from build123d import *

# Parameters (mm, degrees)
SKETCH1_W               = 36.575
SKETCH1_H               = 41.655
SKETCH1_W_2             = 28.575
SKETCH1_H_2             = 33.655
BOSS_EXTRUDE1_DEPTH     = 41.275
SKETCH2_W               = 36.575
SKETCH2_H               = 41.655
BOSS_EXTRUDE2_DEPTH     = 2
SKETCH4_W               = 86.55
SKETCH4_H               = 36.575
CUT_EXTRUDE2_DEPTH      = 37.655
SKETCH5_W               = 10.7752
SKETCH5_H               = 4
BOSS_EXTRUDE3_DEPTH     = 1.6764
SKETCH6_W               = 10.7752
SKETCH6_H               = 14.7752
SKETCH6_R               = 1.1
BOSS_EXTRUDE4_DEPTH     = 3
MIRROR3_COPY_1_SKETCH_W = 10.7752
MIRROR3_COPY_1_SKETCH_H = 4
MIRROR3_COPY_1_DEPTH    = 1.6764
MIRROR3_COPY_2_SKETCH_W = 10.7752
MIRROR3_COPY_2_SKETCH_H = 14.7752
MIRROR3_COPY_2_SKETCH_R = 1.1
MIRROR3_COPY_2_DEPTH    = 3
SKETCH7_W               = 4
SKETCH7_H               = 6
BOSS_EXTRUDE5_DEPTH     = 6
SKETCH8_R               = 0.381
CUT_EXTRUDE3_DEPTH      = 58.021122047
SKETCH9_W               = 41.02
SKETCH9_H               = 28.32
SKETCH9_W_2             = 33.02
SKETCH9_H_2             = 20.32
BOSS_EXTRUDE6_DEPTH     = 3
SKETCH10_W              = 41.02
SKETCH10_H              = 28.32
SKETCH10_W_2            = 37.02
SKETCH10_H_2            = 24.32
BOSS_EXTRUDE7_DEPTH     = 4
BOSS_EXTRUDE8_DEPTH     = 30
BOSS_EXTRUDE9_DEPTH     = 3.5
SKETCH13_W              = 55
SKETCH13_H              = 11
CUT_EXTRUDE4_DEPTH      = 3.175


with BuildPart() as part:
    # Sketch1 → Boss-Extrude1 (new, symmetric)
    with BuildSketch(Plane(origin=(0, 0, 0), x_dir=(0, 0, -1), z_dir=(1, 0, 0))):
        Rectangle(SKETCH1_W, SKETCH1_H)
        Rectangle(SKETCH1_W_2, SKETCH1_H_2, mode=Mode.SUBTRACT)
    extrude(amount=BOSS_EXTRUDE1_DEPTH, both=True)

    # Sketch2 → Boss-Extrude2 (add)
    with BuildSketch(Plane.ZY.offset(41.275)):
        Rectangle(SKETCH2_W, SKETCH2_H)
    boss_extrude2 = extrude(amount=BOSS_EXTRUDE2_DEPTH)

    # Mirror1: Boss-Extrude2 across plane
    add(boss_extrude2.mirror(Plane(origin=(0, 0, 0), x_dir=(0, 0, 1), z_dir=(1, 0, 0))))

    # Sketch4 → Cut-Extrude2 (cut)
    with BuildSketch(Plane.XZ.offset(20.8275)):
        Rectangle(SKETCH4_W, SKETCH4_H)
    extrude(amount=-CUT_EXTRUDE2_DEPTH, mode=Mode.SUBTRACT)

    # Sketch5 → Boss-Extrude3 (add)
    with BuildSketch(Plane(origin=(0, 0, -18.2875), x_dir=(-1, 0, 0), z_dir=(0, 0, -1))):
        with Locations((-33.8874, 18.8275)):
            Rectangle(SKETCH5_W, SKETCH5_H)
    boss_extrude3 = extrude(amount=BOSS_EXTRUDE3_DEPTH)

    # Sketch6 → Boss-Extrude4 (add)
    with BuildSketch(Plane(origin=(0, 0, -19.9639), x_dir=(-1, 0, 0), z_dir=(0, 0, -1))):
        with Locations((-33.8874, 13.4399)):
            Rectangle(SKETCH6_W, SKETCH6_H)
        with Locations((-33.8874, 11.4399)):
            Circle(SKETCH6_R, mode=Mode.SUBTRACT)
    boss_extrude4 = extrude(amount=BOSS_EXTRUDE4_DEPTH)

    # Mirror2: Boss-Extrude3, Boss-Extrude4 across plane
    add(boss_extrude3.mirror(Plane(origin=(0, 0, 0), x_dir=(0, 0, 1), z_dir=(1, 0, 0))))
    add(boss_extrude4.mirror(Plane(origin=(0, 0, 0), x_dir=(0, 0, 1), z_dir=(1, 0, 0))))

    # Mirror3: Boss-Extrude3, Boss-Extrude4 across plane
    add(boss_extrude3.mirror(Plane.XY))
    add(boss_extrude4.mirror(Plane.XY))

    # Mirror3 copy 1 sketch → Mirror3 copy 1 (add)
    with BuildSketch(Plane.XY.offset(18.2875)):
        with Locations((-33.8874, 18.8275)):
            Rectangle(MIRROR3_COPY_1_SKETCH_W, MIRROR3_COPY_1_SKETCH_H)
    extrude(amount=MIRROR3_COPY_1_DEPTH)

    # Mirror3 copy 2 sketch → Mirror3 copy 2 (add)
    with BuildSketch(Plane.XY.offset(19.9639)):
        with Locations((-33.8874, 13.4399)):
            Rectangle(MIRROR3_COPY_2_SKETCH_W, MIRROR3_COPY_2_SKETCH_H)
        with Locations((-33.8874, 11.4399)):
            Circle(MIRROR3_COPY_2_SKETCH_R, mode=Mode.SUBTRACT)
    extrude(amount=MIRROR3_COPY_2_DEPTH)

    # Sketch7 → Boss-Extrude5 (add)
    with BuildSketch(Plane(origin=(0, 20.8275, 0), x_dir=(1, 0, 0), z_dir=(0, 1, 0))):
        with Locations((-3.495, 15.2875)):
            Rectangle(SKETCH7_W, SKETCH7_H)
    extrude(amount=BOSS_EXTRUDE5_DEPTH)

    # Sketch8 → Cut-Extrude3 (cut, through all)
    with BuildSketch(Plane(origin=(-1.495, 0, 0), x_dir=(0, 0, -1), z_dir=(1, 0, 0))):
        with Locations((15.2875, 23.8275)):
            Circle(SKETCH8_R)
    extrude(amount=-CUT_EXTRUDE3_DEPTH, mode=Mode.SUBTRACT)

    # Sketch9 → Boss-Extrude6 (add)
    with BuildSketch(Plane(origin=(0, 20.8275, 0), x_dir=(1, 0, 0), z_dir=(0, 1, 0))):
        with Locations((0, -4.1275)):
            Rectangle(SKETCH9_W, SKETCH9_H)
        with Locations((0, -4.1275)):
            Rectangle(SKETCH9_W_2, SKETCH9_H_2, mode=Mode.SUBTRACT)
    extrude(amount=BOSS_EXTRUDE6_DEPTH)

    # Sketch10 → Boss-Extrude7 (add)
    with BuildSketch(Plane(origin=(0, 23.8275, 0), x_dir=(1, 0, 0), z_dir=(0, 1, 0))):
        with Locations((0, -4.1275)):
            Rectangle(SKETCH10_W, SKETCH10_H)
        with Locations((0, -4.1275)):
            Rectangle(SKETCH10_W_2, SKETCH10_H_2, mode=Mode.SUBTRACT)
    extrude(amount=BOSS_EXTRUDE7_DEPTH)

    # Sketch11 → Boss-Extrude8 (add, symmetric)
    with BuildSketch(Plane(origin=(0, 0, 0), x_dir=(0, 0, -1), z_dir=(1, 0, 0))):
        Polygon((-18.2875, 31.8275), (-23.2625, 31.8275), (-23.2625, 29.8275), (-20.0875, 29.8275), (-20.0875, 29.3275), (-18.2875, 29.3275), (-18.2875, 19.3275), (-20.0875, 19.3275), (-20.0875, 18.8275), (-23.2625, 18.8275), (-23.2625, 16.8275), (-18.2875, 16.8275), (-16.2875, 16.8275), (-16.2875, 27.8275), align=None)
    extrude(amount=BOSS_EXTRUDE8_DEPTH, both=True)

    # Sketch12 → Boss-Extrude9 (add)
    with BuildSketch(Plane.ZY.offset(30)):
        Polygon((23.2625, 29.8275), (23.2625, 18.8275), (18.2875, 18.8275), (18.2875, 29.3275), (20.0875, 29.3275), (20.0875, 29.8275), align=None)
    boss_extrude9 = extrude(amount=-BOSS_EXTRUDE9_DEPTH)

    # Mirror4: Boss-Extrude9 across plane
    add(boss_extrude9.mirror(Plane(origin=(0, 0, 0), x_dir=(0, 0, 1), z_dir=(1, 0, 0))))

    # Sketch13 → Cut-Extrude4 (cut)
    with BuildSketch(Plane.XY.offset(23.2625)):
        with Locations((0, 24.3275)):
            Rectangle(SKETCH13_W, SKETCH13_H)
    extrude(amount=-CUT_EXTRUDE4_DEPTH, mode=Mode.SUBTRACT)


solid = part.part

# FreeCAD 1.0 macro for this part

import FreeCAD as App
import Part
import Sketcher
from FreeCAD import Vector


def add_polygon(sketch, points):
    """Adds a closed chain of lines whose ends are joined by coincident constraints."""
    first, n = sketch.GeometryCount, len(points)
    for a, b in zip(points, points[1:] + points[:1]):
        sketch.addGeometry(Part.LineSegment(App.Vector(*a, 0), App.Vector(*b, 0)), False)
    for i in range(n):
        sketch.addConstraint(Sketcher.Constraint("Coincident", first + i, 2, first + (i + 1) % n, 1))

doc = App.newDocument("Part")
body = doc.addObject("PartDesign::Body", "Body")

sketch1 = body.newObject("Sketcher::SketchObject", "Sketch")
sketch1.AttachmentSupport = (doc.getObject("YZ_Plane"), [""])
sketch1.MapMode = "FlatFace"
add_polygon(sketch1, [(21, 18), (-21, 18), (-21, -18), (21, -18)])
add_polygon(sketch1, [(-17, -14), (-17, 14), (17, 14), (17, -14)])
sketch1.addConstraint(Sketcher.Constraint("Horizontal", 0))
sketch1.addConstraint(Sketcher.Constraint("Vertical", 1))
sketch1.addConstraint(Sketcher.Constraint("Horizontal", 2))
sketch1.addConstraint(Sketcher.Constraint("Vertical", 3))
sketch1.addConstraint(Sketcher.Constraint("Vertical", 4))
sketch1.addConstraint(Sketcher.Constraint("Horizontal", 5))
sketch1.addConstraint(Sketcher.Constraint("Vertical", 6))
sketch1.addConstraint(Sketcher.Constraint("Horizontal", 7))
sketch1.addConstraint(Sketcher.Constraint("Symmetric", 0, 2, 2, 2, -1, 1))
sketch1.addConstraint(Sketcher.Constraint("Symmetric", 4, 2, 6, 2, -1, 1))
sketch1.addConstraint(Sketcher.Constraint("DistanceX", 0, 2, 4, 2, 4.0))
sketch1.addConstraint(Sketcher.Constraint("DistanceY", 4, 2, 0, 2, 4.0))
sketch1.addConstraint(Sketcher.Constraint("DistanceX", 0, 2, 0, 1, 41.655))
sketch1.addConstraint(Sketcher.Constraint("DistanceY", 1, 2, 1, 1, 36.575))
pad1 = body.newObject("PartDesign::Pad", "Pad")
pad1.Profile = sketch1
pad1.Length = 82.55
pad1.Midplane = True

sketch2 = body.newObject("Sketcher::SketchObject", "Sketch001")
sketch2.AttachmentSupport = (doc.getObject("YZ_Plane"), [""])
sketch2.MapMode = "FlatFace"
sketch2.AttachmentOffset = App.Placement(Vector(0, 0, -41.275), App.Rotation())
add_polygon(sketch2, [(21, -18), (-21, -18), (-21, 18), (21, 18)])
sketch2.addConstraint(Sketcher.Constraint("Horizontal", 0))
sketch2.addConstraint(Sketcher.Constraint("Vertical", 1))
sketch2.addConstraint(Sketcher.Constraint("Horizontal", 2))
sketch2.addConstraint(Sketcher.Constraint("Vertical", 3))
sketch2.addConstraint(Sketcher.Constraint("Symmetric", 0, 2, 2, 2, -1, 1))
sketch2.addConstraint(Sketcher.Constraint("DistanceX", 0, 2, 0, 1, 41.655))
sketch2.addConstraint(Sketcher.Constraint("DistanceY", 1, 1, 1, 2, 36.575))
pad2 = body.newObject("PartDesign::Pad", "Pad001")
pad2.Profile = sketch2
pad2.Length = 2
pad2.Reversed = True
doc.recompute()

mirrored = body.newObject("PartDesign::Mirrored", "Mirrored")
mirrored.Originals = [pad2]
mirrored.MirrorPlane = (doc.getObject("YZ_Plane"), [""])
body.Tip = mirrored

sketch3 = body.newObject("Sketcher::SketchObject", "Sketch002")
sketch3.AttachmentSupport = (doc.getObject("XZ_Plane"), [""])
sketch3.MapMode = "FlatFace"
sketch3.AttachmentOffset = App.Placement(Vector(0, 0, 20.8275), App.Rotation())
add_polygon(sketch3, [(-43, 18), (-43, -18), (43, -18), (43, 18)])
sketch3.addConstraint(Sketcher.Constraint("Vertical", 0))
sketch3.addConstraint(Sketcher.Constraint("Horizontal", 1))
sketch3.addConstraint(Sketcher.Constraint("Vertical", 2))
sketch3.addConstraint(Sketcher.Constraint("Horizontal", 3))
sketch3.addConstraint(Sketcher.Constraint("Symmetric", 0, 2, 2, 2, -1, 1))
sketch3.addConstraint(Sketcher.Constraint("DistanceX", 1, 1, 1, 2, 86.55))
sketch3.addConstraint(Sketcher.Constraint("DistanceY", 0, 2, 0, 1, 36.575))
pocket1 = body.newObject("PartDesign::Pocket", "Pocket")
pocket1.Profile = sketch3
pocket1.Length = 37.655

sketch4 = body.newObject("Sketcher::SketchObject", "Sketch003")
sketch4.AttachmentSupport = (doc.getObject("XY_Plane"), [""])
sketch4.MapMode = "FlatFace"
sketch4.AttachmentOffset = App.Placement(Vector(0, 0, -18.2875), App.Rotation())
add_polygon(sketch4, [(39.3, 20.8), (39.3, 16.8), (28.5, 16.8), (28.5, 20.8)])
sketch4.addConstraint(Sketcher.Constraint("Vertical", 0))
sketch4.addConstraint(Sketcher.Constraint("Horizontal", 1))
sketch4.addConstraint(Sketcher.Constraint("Vertical", 2))
sketch4.addConstraint(Sketcher.Constraint("Horizontal", 3))
sketch4.addConstraint(Sketcher.Constraint("DistanceY", 0, 2, 0, 1, 4.0))
sketch4.addConstraint(Sketcher.Constraint("DistanceX", 1, 2, 1, 1, 10.7752))
sketch4.addConstraint(Sketcher.Constraint("DistanceX", -1, 1, 0, 2, 39.275))
sketch4.addConstraint(Sketcher.Constraint("DistanceY", -1, 1, 0, 2, 16.8275))
pad3 = body.newObject("PartDesign::Pad", "Pad002")
pad3.Profile = sketch4
pad3.Length = 1.6764
pad3.Reversed = True

sketch5 = body.newObject("Sketcher::SketchObject", "Sketch004")
sketch5.AttachmentSupport = (doc.getObject("XY_Plane"), [""])
sketch5.MapMode = "FlatFace"
sketch5.AttachmentOffset = App.Placement(Vector(0, 0, -19.9639), App.Rotation())
add_polygon(sketch5, [(39.3, 20.8), (39.3, 6.1), (28.5, 6.1), (28.5, 20.8)])
sketch5.addGeometry(Part.Circle(Vector(33.9, 11.4, 0), Vector(0, 0, 1), 1.1), False)
sketch5.addConstraint(Sketcher.Constraint("Vertical", 0))
sketch5.addConstraint(Sketcher.Constraint("Horizontal", 1))
sketch5.addConstraint(Sketcher.Constraint("Vertical", 2))
sketch5.addConstraint(Sketcher.Constraint("Horizontal", 3))
sketch5.addConstraint(Sketcher.Constraint("Diameter", 4, 2.2))
sketch5.addConstraint(Sketcher.Constraint("DistanceX", 1, 2, 1, 1, 10.7752))
sketch5.addConstraint(Sketcher.Constraint("DistanceY", 0, 2, 0, 1, 14.7752))
sketch5.addConstraint(Sketcher.Constraint("DistanceX", -1, 1, 0, 2, 39.275))
sketch5.addConstraint(Sketcher.Constraint("DistanceX", -1, 1, 4, 3, 33.8874))
sketch5.addConstraint(Sketcher.Constraint("DistanceY", -1, 1, 4, 3, 11.4399))
sketch5.addConstraint(Sketcher.Constraint("DistanceY", -1, 1, 0, 2, 6.0523))
pad4 = body.newObject("PartDesign::Pad", "Pad003")
pad4.Profile = sketch5
pad4.Length = 3
pad4.Reversed = True
doc.recompute()

mirrored2 = body.newObject("PartDesign::Mirrored", "Mirrored001")
mirrored2.Originals = [pad3, pad4]
mirrored2.MirrorPlane = (doc.getObject("YZ_Plane"), [""])
body.Tip = mirrored2
doc.recompute()

mirrored3 = body.newObject("PartDesign::Mirrored", "Mirrored002")
mirrored3.Originals = [pad3, pad4]
mirrored3.MirrorPlane = (doc.getObject("XY_Plane"), [""])
body.Tip = mirrored3

sketch6 = body.newObject("Sketcher::SketchObject", "Sketch005")
sketch6.AttachmentSupport = (doc.getObject("XY_Plane"), [""])
sketch6.MapMode = "FlatFace"
sketch6.AttachmentOffset = App.Placement(Vector(0, 0, 18.2875), App.Rotation())
add_polygon(sketch6, [(-39.3, 20.8), (-39.3, 16.8), (-28.5, 16.8), (-28.5, 20.8)])
sketch6.addConstraint(Sketcher.Constraint("Vertical", 0))
sketch6.addConstraint(Sketcher.Constraint("Horizontal", 1))
sketch6.addConstraint(Sketcher.Constraint("Vertical", 2))
sketch6.addConstraint(Sketcher.Constraint("Horizontal", 3))
sketch6.addConstraint(Sketcher.Constraint("DistanceY", 0, 2, 0, 1, 4.0))
sketch6.addConstraint(Sketcher.Constraint("DistanceX", 1, 1, 1, 2, 10.7752))
sketch6.addConstraint(Sketcher.Constraint("DistanceX", 0, 2, -1, 1, 39.275))
sketch6.addConstraint(Sketcher.Constraint("DistanceY", -1, 1, 0, 2, 16.8275))
pad5 = body.newObject("PartDesign::Pad", "Pad004")
pad5.Profile = sketch6
pad5.Length = 1.6764

sketch7 = body.newObject("Sketcher::SketchObject", "Sketch006")
sketch7.AttachmentSupport = (doc.getObject("XY_Plane"), [""])
sketch7.MapMode = "FlatFace"
sketch7.AttachmentOffset = App.Placement(Vector(0, 0, 19.9639), App.Rotation())
add_polygon(sketch7, [(-39.3, 20.8), (-39.3, 6.1), (-28.5, 6.1), (-28.5, 20.8)])
sketch7.addGeometry(Part.Circle(Vector(-33.9, 11.4, 0), Vector(0, 0, 1), 1.1), False)
sketch7.addConstraint(Sketcher.Constraint("Vertical", 0))
sketch7.addConstraint(Sketcher.Constraint("Horizontal", 1))
sketch7.addConstraint(Sketcher.Constraint("Vertical", 2))
sketch7.addConstraint(Sketcher.Constraint("Horizontal", 3))
sketch7.addConstraint(Sketcher.Constraint("Diameter", 4, 2.2))
sketch7.addConstraint(Sketcher.Constraint("DistanceX", 1, 1, 1, 2, 10.7752))
sketch7.addConstraint(Sketcher.Constraint("DistanceY", 0, 2, 0, 1, 14.7752))
sketch7.addConstraint(Sketcher.Constraint("DistanceX", 0, 2, -1, 1, 39.275))
sketch7.addConstraint(Sketcher.Constraint("DistanceX", 4, 3, -1, 1, 33.8874))
sketch7.addConstraint(Sketcher.Constraint("DistanceY", -1, 1, 4, 3, 11.4399))
sketch7.addConstraint(Sketcher.Constraint("DistanceY", -1, 1, 0, 2, 6.0523))
pad6 = body.newObject("PartDesign::Pad", "Pad005")
pad6.Profile = sketch7
pad6.Length = 3

sketch8 = body.newObject("Sketcher::SketchObject", "Sketch007")
sketch8.AttachmentSupport = (doc.getObject("XZ_Plane"), [""])
sketch8.MapMode = "FlatFace"
sketch8.AttachmentOffset = App.Placement(Vector(0, 0, -20.8275), App.Rotation())
add_polygon(sketch8, [(-5.5, -18.3), (-5.5, -12.3), (-1.5, -12.3), (-1.5, -18.3)])
sketch8.addConstraint(Sketcher.Constraint("Vertical", 0))
sketch8.addConstraint(Sketcher.Constraint("Horizontal", 1))
sketch8.addConstraint(Sketcher.Constraint("Vertical", 2))
sketch8.addConstraint(Sketcher.Constraint("Horizontal", 3))
sketch8.addConstraint(Sketcher.Constraint("DistanceX", 1, 1, 1, 2, 4.0))
sketch8.addConstraint(Sketcher.Constraint("DistanceY", 0, 1, 0, 2, 6.0))
sketch8.addConstraint(Sketcher.Constraint("DistanceX", 0, 2, -1, 1, 5.495))
sketch8.addConstraint(Sketcher.Constraint("DistanceY", 0, 2, -1, 1, 12.2875))
pad7 = body.newObject("PartDesign::Pad", "Pad006")
pad7.Profile = sketch8
pad7.Length = 6
pad7.Reversed = True

sketch9 = body.newObject("Sketcher::SketchObject", "Sketch008")
sketch9.AttachmentSupport = (doc.getObject("YZ_Plane"), [""])
sketch9.MapMode = "FlatFace"
sketch9.AttachmentOffset = App.Placement(Vector(0, 0, -1.495), App.Rotation())
sketch9.addGeometry(Part.Circle(Vector(23.83, -15.29, 0), Vector(0, 0, 1), 0.38), False)
sketch9.addConstraint(Sketcher.Constraint("Diameter", 0, 0.762))
sketch9.addConstraint(Sketcher.Constraint("DistanceX", -1, 1, 0, 3, 23.8275))
sketch9.addConstraint(Sketcher.Constraint("DistanceY", 0, 3, -1, 1, 15.2875))
pocket2 = body.newObject("PartDesign::Pocket", "Pocket001")
pocket2.Profile = sketch9
pocket2.Type = "ThroughAll"

sketch10 = body.newObject("Sketcher::SketchObject", "Sketch009")
sketch10.AttachmentSupport = (doc.getObject("XZ_Plane"), [""])
sketch10.MapMode = "FlatFace"
sketch10.AttachmentOffset = App.Placement(Vector(0, 0, -20.8275), App.Rotation())
add_polygon(sketch10, [(-21, -10), (-21, 18), (21, 18), (21, -10)])
add_polygon(sketch10, [(17, 14), (-17, 14), (-17, -6), (17, -6)])
sketch10.addConstraint(Sketcher.Constraint("Vertical", 0))
sketch10.addConstraint(Sketcher.Constraint("Horizontal", 1))
sketch10.addConstraint(Sketcher.Constraint("Vertical", 2))
sketch10.addConstraint(Sketcher.Constraint("Horizontal", 3))
sketch10.addConstraint(Sketcher.Constraint("Horizontal", 4))
sketch10.addConstraint(Sketcher.Constraint("Vertical", 5))
sketch10.addConstraint(Sketcher.Constraint("Horizontal", 6))
sketch10.addConstraint(Sketcher.Constraint("Vertical", 7))
sketch10.addConstraint(Sketcher.Constraint("DistanceX", 0, 2, 4, 2, 4.0))
sketch10.addConstraint(Sketcher.Constraint("DistanceY", 4, 2, 0, 2, 4.0))
sketch10.addConstraint(Sketcher.Constraint("DistanceY", 3, 2, 5, 2, 4.0))
sketch10.addConstraint(Sketcher.Constraint("DistanceX", 6, 2, 2, 2, 4.0))
sketch10.addConstraint(Sketcher.Constraint("DistanceX", 1, 1, 1, 2, 41.02))
sketch10.addConstraint(Sketcher.Constraint("DistanceY", 0, 1, 0, 2, 28.32))
sketch10.addConstraint(Sketcher.Constraint("DistanceX", 0, 2, -1, 1, 20.51))
sketch10.addConstraint(Sketcher.Constraint("DistanceY", -1, 1, 0, 2, 18.2875))
pad8 = body.newObject("PartDesign::Pad", "Pad007")
pad8.Profile = sketch10
pad8.Length = 3
pad8.Reversed = True

sketch11 = body.newObject("Sketcher::SketchObject", "Sketch010")
sketch11.AttachmentSupport = (doc.getObject("XZ_Plane"), [""])
sketch11.MapMode = "FlatFace"
sketch11.AttachmentOffset = App.Placement(Vector(0, 0, -23.8275), App.Rotation())
add_polygon(sketch11, [(-21, -10), (-21, 18), (21, 18), (21, -10)])
add_polygon(sketch11, [(19, 16), (-19, 16), (-19, -8), (19, -8)])
sketch11.addConstraint(Sketcher.Constraint("Vertical", 0))
sketch11.addConstraint(Sketcher.Constraint("Horizontal", 1))
sketch11.addConstraint(Sketcher.Constraint("Vertical", 2))
sketch11.addConstraint(Sketcher.Constraint("Horizontal", 3))
sketch11.addConstraint(Sketcher.Constraint("Horizontal", 4))
sketch11.addConstraint(Sketcher.Constraint("Vertical", 5))
sketch11.addConstraint(Sketcher.Constraint("Horizontal", 6))
sketch11.addConstraint(Sketcher.Constraint("Vertical", 7))
sketch11.addConstraint(Sketcher.Constraint("DistanceX", 0, 2, 4, 2, 2.0))
sketch11.addConstraint(Sketcher.Constraint("DistanceY", 4, 2, 0, 2, 2.0))
sketch11.addConstraint(Sketcher.Constraint("DistanceY", 3, 2, 5, 2, 2.0))
sketch11.addConstraint(Sketcher.Constraint("DistanceX", 6, 2, 2, 2, 2.0))
sketch11.addConstraint(Sketcher.Constraint("DistanceX", 1, 1, 1, 2, 41.02))
sketch11.addConstraint(Sketcher.Constraint("DistanceY", 0, 1, 0, 2, 28.32))
sketch11.addConstraint(Sketcher.Constraint("DistanceX", 0, 2, -1, 1, 20.51))
sketch11.addConstraint(Sketcher.Constraint("DistanceY", -1, 1, 0, 2, 18.2875))
pad9 = body.newObject("PartDesign::Pad", "Pad008")
pad9.Profile = sketch11
pad9.Length = 4
pad9.Reversed = True

sketch12 = body.newObject("Sketcher::SketchObject", "Sketch011")
sketch12.AttachmentSupport = (doc.getObject("YZ_Plane"), [""])
sketch12.MapMode = "FlatFace"
add_polygon(sketch12, [(31.8, 18.3), (31.8, 23.3), (29.8, 23.3), (29.8, 20.1), (29.3, 20.1), (29.3, 18.3), (19.3, 18.3), (19.3, 20.1), (18.8, 20.1), (18.8, 23.3), (16.8, 23.3), (16.8, 16.3), (27.8, 16.3)])
sketch12.addConstraint(Sketcher.Constraint("Vertical", 0))
sketch12.addConstraint(Sketcher.Constraint("Horizontal", 1))
sketch12.addConstraint(Sketcher.Constraint("Vertical", 2))
sketch12.addConstraint(Sketcher.Constraint("Horizontal", 3))
sketch12.addConstraint(Sketcher.Constraint("Vertical", 4))
sketch12.addConstraint(Sketcher.Constraint("Horizontal", 5))
sketch12.addConstraint(Sketcher.Constraint("Vertical", 6))
sketch12.addConstraint(Sketcher.Constraint("Horizontal", 7))
sketch12.addConstraint(Sketcher.Constraint("Vertical", 8))
sketch12.addConstraint(Sketcher.Constraint("Horizontal", 9))
sketch12.addConstraint(Sketcher.Constraint("Vertical", 10))
sketch12.addConstraint(Sketcher.Constraint("Horizontal", 11))
sketch12.addConstraint(Sketcher.Constraint("Horizontal", 3, 2, 6, 2))
sketch12.addConstraint(Sketcher.Constraint("Horizontal", 1, 2, 8, 2))
sketch12.addConstraint(Sketcher.Constraint("Horizontal", 5, 2, 12, 2))
sketch12.addConstraint(Sketcher.Constraint("Equal", 3, 7))
sketch12.addConstraint(Sketcher.Constraint("Equal", 1, 9))
sketch12.addConstraint(Sketcher.Constraint("DistanceX", 1, 2, 1, 1, 2.0))
sketch12.addConstraint(Sketcher.Constraint("DistanceX", 5, 2, 5, 1, 10.0))
sketch12.addConstraint(Sketcher.Constraint("DistanceX", 11, 1, 11, 2, 11.0))
sketch12.addConstraint(Sketcher.Constraint("DistanceX", 3, 2, 3, 1, 0.5))
sketch12.addConstraint(Sketcher.Constraint("DistanceY", 4, 2, 4, 1, 1.8))
sketch12.addConstraint(Sketcher.Constraint("DistanceY", 10, 2, 5, 2, 2.0))
sketch12.addConstraint(Sketcher.Constraint("DistanceY", 0, 1, 0, 2, 4.975))
sketch12.addConstraint(Sketcher.Constraint("DistanceX", -1, 1, 0, 2, 31.8275))
sketch12.addConstraint(Sketcher.Constraint("DistanceY", -1, 1, 0, 2, 23.2625))
pad10 = body.newObject("PartDesign::Pad", "Pad009")
pad10.Profile = sketch12
pad10.Length = 60
pad10.Midplane = True

sketch13 = body.newObject("Sketcher::SketchObject", "Sketch012")
sketch13.AttachmentSupport = (doc.getObject("YZ_Plane"), [""])
sketch13.MapMode = "FlatFace"
sketch13.AttachmentOffset = App.Placement(Vector(0, 0, -30), App.Rotation())
add_polygon(sketch13, [(18.8, 23.3), (29.8, 23.3), (29.8, 20.1), (29.3, 20.1), (29.3, 18.3), (18.8, 18.3)])
sketch13.addConstraint(Sketcher.Constraint("Horizontal", 0))
sketch13.addConstraint(Sketcher.Constraint("Vertical", 1))
sketch13.addConstraint(Sketcher.Constraint("Horizontal", 2))
sketch13.addConstraint(Sketcher.Constraint("Vertical", 3))
sketch13.addConstraint(Sketcher.Constraint("Horizontal", 4))
sketch13.addConstraint(Sketcher.Constraint("Vertical", 5))
sketch13.addConstraint(Sketcher.Constraint("DistanceX", 0, 1, 0, 2, 11.0))
sketch13.addConstraint(Sketcher.Constraint("DistanceX", 2, 2, 2, 1, 0.5))
sketch13.addConstraint(Sketcher.Constraint("DistanceY", 3, 2, 3, 1, 1.8))
sketch13.addConstraint(Sketcher.Constraint("DistanceY", 1, 2, 1, 1, 3.175))
sketch13.addConstraint(Sketcher.Constraint("DistanceX", -1, 1, 0, 2, 29.8275))
sketch13.addConstraint(Sketcher.Constraint("DistanceY", -1, 1, 0, 2, 23.2625))
pad11 = body.newObject("PartDesign::Pad", "Pad010")
pad11.Profile = sketch13
pad11.Length = 3.5
doc.recompute()

mirrored4 = body.newObject("PartDesign::Mirrored", "Mirrored003")
mirrored4.Originals = [pad11]
mirrored4.MirrorPlane = (doc.getObject("YZ_Plane"), [""])
body.Tip = mirrored4

sketch14 = body.newObject("Sketcher::SketchObject", "Sketch013")
sketch14.AttachmentSupport = (doc.getObject("XY_Plane"), [""])
sketch14.MapMode = "FlatFace"
sketch14.AttachmentOffset = App.Placement(Vector(0, 0, 23.2625), App.Rotation())
add_polygon(sketch14, [(-28, 30), (-28, 19), (28, 19), (28, 30)])
sketch14.addConstraint(Sketcher.Constraint("Vertical", 0))
sketch14.addConstraint(Sketcher.Constraint("Horizontal", 1))
sketch14.addConstraint(Sketcher.Constraint("Vertical", 2))
sketch14.addConstraint(Sketcher.Constraint("Horizontal", 3))
sketch14.addConstraint(Sketcher.Constraint("DistanceX", 1, 1, 1, 2, 55.0))
sketch14.addConstraint(Sketcher.Constraint("DistanceY", 0, 2, 0, 1, 11.0))
sketch14.addConstraint(Sketcher.Constraint("DistanceX", 0, 2, -1, 1, 27.5))
sketch14.addConstraint(Sketcher.Constraint("DistanceY", -1, 1, 0, 2, 18.8275))
pocket3 = body.newObject("PartDesign::Pocket", "Pocket002")
pocket3.Profile = sketch14
pocket3.Length = 3.175

doc.recompute()
